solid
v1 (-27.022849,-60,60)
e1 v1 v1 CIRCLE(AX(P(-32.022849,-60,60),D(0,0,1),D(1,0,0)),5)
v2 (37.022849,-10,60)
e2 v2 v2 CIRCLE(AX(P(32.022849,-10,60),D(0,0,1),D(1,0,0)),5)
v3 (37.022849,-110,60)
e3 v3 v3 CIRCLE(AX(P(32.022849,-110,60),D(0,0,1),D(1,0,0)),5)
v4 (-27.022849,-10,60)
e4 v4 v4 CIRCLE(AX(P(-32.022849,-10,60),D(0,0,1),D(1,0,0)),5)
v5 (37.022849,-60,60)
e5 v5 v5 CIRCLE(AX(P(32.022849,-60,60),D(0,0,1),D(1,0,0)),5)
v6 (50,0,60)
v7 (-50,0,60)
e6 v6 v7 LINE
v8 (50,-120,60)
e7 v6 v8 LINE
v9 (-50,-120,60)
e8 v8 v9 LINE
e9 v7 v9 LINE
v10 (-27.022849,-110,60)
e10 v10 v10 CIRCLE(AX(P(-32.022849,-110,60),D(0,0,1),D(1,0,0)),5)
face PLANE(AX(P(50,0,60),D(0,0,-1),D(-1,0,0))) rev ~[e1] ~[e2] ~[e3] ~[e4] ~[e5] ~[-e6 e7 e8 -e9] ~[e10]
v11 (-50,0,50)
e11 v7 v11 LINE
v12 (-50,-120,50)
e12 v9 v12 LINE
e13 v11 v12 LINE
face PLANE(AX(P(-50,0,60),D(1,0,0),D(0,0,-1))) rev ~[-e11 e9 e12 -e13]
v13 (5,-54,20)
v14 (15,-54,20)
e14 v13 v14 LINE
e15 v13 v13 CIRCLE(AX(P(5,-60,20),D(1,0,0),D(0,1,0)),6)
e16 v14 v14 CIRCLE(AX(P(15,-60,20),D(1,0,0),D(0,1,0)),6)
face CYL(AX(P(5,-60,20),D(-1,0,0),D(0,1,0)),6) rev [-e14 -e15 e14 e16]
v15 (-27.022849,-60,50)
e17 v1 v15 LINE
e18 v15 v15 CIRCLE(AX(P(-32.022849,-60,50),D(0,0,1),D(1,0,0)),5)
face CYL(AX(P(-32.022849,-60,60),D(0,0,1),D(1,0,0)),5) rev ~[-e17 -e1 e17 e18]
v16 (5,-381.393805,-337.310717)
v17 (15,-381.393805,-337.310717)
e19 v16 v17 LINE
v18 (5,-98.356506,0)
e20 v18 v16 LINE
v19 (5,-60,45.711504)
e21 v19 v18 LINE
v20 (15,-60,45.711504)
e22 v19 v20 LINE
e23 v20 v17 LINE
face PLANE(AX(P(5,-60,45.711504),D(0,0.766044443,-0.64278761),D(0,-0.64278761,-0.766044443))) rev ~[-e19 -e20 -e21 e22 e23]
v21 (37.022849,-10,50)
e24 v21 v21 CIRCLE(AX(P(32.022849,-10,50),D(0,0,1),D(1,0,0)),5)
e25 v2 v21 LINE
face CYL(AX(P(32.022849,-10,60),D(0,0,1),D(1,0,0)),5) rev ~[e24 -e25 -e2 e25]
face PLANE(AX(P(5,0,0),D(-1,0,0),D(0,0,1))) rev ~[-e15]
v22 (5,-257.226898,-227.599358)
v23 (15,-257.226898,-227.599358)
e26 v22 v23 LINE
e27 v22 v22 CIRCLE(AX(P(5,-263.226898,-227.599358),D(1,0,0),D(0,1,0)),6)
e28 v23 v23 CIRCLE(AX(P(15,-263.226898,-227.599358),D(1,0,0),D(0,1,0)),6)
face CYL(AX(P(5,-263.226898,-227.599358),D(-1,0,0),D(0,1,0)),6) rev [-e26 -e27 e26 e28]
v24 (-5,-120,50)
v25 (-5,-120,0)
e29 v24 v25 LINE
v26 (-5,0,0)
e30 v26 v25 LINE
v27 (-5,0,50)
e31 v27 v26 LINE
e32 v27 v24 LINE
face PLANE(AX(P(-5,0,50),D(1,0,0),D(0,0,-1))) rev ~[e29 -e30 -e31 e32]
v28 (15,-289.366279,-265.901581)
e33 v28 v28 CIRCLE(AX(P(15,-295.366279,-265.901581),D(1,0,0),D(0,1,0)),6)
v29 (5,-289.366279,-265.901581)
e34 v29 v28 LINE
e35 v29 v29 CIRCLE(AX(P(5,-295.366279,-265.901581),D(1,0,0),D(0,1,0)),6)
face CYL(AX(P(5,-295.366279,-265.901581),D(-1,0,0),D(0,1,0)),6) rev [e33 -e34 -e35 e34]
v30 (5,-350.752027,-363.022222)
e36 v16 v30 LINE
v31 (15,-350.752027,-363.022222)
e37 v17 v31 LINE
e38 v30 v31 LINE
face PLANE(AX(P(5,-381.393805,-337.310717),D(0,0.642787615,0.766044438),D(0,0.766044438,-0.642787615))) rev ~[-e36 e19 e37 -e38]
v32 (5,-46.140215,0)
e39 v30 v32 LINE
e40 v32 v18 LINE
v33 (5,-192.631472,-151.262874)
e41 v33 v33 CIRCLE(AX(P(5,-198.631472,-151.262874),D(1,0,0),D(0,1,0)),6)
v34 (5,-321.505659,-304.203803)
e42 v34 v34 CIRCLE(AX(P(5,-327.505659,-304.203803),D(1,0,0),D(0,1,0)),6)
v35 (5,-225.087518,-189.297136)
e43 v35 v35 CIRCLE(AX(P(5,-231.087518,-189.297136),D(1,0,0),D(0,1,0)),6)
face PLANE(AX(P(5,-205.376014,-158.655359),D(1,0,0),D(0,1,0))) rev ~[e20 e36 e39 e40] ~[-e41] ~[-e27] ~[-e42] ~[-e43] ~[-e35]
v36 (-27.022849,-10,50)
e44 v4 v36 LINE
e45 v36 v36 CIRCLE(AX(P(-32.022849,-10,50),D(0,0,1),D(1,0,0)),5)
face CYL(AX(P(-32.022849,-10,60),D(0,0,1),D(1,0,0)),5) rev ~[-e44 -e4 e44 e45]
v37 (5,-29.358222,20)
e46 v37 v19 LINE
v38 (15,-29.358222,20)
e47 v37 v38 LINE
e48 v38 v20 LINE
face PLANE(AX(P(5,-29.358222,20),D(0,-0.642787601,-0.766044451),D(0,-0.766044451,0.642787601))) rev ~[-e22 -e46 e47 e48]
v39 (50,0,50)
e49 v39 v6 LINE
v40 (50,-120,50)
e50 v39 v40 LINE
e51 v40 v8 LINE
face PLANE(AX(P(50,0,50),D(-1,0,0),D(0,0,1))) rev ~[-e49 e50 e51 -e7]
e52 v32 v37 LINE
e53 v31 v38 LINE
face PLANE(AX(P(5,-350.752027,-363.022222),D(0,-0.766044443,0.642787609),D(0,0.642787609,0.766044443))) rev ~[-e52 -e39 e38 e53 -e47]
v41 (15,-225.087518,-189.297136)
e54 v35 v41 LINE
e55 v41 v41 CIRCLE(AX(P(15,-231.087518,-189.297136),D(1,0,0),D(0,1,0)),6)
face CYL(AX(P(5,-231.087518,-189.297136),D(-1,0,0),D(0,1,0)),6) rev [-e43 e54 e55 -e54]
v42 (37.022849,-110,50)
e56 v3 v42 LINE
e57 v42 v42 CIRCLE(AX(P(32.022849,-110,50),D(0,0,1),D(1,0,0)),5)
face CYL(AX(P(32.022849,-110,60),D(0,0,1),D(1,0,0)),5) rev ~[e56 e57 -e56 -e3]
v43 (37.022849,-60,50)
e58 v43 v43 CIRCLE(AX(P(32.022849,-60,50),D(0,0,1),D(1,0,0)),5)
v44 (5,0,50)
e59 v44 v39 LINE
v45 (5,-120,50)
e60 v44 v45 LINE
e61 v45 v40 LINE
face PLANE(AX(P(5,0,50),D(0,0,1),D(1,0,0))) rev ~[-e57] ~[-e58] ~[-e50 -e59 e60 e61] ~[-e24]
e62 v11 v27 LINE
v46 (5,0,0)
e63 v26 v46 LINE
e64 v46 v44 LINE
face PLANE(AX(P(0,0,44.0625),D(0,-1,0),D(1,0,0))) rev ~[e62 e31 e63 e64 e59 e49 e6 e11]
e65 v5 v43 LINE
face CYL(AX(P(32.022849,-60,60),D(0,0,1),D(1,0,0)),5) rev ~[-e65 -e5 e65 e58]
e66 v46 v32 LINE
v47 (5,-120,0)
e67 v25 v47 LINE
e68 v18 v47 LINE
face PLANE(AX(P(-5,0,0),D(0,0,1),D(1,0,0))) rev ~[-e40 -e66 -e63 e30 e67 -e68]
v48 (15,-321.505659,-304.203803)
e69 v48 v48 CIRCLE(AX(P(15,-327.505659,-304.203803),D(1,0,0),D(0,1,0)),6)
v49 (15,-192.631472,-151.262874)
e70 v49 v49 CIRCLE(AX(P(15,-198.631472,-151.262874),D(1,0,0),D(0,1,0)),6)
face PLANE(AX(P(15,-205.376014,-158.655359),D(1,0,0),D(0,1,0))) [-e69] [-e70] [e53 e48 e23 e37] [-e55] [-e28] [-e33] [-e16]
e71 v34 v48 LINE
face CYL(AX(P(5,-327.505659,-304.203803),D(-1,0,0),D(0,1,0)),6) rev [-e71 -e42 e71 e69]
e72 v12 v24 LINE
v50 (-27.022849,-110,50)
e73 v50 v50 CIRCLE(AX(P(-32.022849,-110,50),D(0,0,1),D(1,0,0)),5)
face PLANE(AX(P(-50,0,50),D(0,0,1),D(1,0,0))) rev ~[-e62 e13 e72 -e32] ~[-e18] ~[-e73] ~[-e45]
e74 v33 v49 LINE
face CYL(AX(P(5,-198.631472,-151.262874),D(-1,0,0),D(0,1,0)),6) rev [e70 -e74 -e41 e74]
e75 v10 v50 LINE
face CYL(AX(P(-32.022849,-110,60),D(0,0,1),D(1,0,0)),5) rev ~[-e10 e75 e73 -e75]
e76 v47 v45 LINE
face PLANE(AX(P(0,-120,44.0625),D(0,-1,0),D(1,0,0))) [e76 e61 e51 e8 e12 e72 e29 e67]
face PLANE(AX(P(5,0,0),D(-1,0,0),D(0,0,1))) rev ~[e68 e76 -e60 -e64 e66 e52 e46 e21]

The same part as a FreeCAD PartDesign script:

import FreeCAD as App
import Part
import Sketcher
Q = App.Units.Quantity

doc = App.newDocument("Part")
body = doc.addObject("PartDesign::Body", "Body")

sketch1 = body.newObject("Sketcher::SketchObject", "Sketch")
sketch1.AttachmentSupport = (doc.getObject("XZ_Plane"), [""])
sketch1.MapMode = "FlatFace"
sketch1.addGeometry([
    Part.LineSegment(App.Vector(-5, 50, 0), App.Vector(-5, 0, 0)),
    Part.LineSegment(App.Vector(-5, 0, 0), App.Vector(5, 0, 0)),
    Part.LineSegment(App.Vector(5, 0, 0), App.Vector(5, 50, 0)),
    Part.LineSegment(App.Vector(5, 50, 0), App.Vector(50, 50, 0)),
    Part.LineSegment(App.Vector(50, 50, 0), App.Vector(50, 60, 0)),
    Part.LineSegment(App.Vector(50, 60, 0), App.Vector(-50, 60, 0)),
    Part.LineSegment(App.Vector(-50, 60, 0), App.Vector(-50, 50, 0)),
    Part.LineSegment(App.Vector(-50, 50, 0), App.Vector(-5, 50, 0)),
], False)
sketch1.addConstraint([
    Sketcher.Constraint("Coincident", 0, 2, 1, 1),
    Sketcher.Constraint("Coincident", 1, 2, 2, 1),
    Sketcher.Constraint("Coincident", 2, 2, 3, 1),
    Sketcher.Constraint("Coincident", 3, 2, 4, 1),
    Sketcher.Constraint("Coincident", 4, 2, 5, 1),
    Sketcher.Constraint("Coincident", 5, 2, 6, 1),
    Sketcher.Constraint("Coincident", 6, 2, 7, 1),
    Sketcher.Constraint("Coincident", 7, 2, 0, 1),
    Sketcher.Constraint("Vertical", 0),
    Sketcher.Constraint("Horizontal", 1),
    Sketcher.Constraint("Vertical", 2),
    Sketcher.Constraint("Horizontal", 3),
    Sketcher.Constraint("Vertical", 4),
    Sketcher.Constraint("Horizontal", 5),
    Sketcher.Constraint("Vertical", 6),
    Sketcher.Constraint("Horizontal", 7),
    Sketcher.Constraint("Symmetric", 0, 2, 1, 2, -1, 1),
    Sketcher.Constraint("Symmetric", 3, 2, 6, 2, -2),
    Sketcher.Constraint("Equal", 1, 4),
    Sketcher.Constraint("DistanceX", 1, 1, 1, 2, 10.0),
    Sketcher.Constraint("DistanceX", 3, 1, 3, 2, 45.0),
    Sketcher.Constraint("DistanceY", 0, 2, 0, 1, 50.0),
])
pad1 = body.newObject("PartDesign::Pad", "Pad")
pad1.Profile = sketch1
pad1.Length = 120

sketch2 = body.newObject("Sketcher::SketchObject", "Sketch001")
sketch2.AttachmentSupport = (doc.getObject("YZ_Plane"), [""])
sketch2.MapMode = "FlatFace"
sketch2.AttachmentOffset = App.Placement(App.Vector(0, 0, 5), App.Rotation())
sketch2.addGeometry([
    Part.LineSegment(App.Vector(-29, 20, 0), App.Vector(-60, 46, 0)),
    Part.LineSegment(App.Vector(-60, 46, 0), App.Vector(-381, -337, 0)),
    Part.LineSegment(App.Vector(-381, -337, 0), App.Vector(-351, -363, 0)),
    Part.LineSegment(App.Vector(-351, -363, 0), App.Vector(-29, 20, 0)),
    Part.Circle(App.Vector(-328, -304, 0), App.Vector(0, 0, 1), 6),
    Part.Circle(App.Vector(-295, -266, 0), App.Vector(0, 0, 1), 6),
    Part.Circle(App.Vector(-263, -228, 0), App.Vector(0, 0, 1), 6),
    Part.Circle(App.Vector(-231, -189, 0), App.Vector(0, 0, 1), 6),
    Part.Circle(App.Vector(-199, -151, 0), App.Vector(0, 0, 1), 6),
    Part.Circle(App.Vector(-60, 20, 0), App.Vector(0, 0, 1), 6),
], False)
sketch2.addConstraint([
    Sketcher.Constraint("Coincident", 0, 2, 1, 1),
    Sketcher.Constraint("Coincident", 1, 2, 2, 1),
    Sketcher.Constraint("Coincident", 2, 2, 3, 1),
    Sketcher.Constraint("Coincident", 3, 2, 0, 1),
    Sketcher.Constraint("Equal", 4, 5),
    Sketcher.Constraint("Equal", 5, 6),
    Sketcher.Constraint("Equal", 6, 7),
    Sketcher.Constraint("Equal", 7, 8),
    Sketcher.Constraint("Equal", 8, 9),
    Sketcher.Constraint("Perpendicular", 0, 1),
    Sketcher.Constraint("Perpendicular", 1, 2),
    Sketcher.Constraint("Perpendicular", 2, 3),
    Sketcher.Constraint("Horizontal", 9, 3, 3, 2),
    Sketcher.Constraint("Vertical", 9, 3, 0, 2),
    Sketcher.Constraint("Diameter", 4, 12.0),
    Sketcher.Constraint("Angle", 0, Q("140.000001 deg")),
    Sketcher.Constraint("Distance", 0, 40.0),
    Sketcher.Constraint("Distance", 1, 500.0),
    Sketcher.Constraint("DistanceX", 9, 3, -1, 1, 60.0),
    Sketcher.Constraint("DistanceY", -1, 1, 9, 3, 20.0),
    Sketcher.Constraint("DistanceX", 6, 3, -1, 1, 263.226898),
    Sketcher.Constraint("DistanceX", 4, 3, -1, 1, 327.505659),
    Sketcher.Constraint("DistanceX", 5, 3, -1, 1, 295.366279),
    Sketcher.Constraint("DistanceY", 5, 3, -1, 1, 265.901581),
    Sketcher.Constraint("DistanceY", 6, 3, -1, 1, 227.599358),
    Sketcher.Constraint("DistanceX", 8, 3, -1, 1, 198.631472),
    Sketcher.Constraint("DistanceY", 4, 3, 5, 3, 38.302222),
    Sketcher.Constraint("DistanceX", 6, 3, 7, 3, 32.13938),
    Sketcher.Constraint("DistanceY", 7, 3, 8, 3, 38.034262),
    Sketcher.Constraint("DistanceY", 4, 3, 8, 3, 152.940929),
])
pad2 = body.newObject("PartDesign::Pad", "Pad001")
pad2.Profile = sketch2
pad2.Length = 10

sketch3 = body.newObject("Sketcher::SketchObject", "Sketch002")
sketch3.AttachmentSupport = (doc.getObject("XY_Plane"), [""])
sketch3.MapMode = "FlatFace"
sketch3.AttachmentOffset = App.Placement(App.Vector(0, 0, 60), App.Rotation())
sketch3.addGeometry([
    Part.Circle(App.Vector(-32, -10, 0), App.Vector(0, 0, 1), 5),
    Part.Circle(App.Vector(-32, -60, 0), App.Vector(0, 0, 1), 5),
    Part.Circle(App.Vector(-32, -110, 0), App.Vector(0, 0, 1), 5),
    Part.Circle(App.Vector(32, -110, 0), App.Vector(0, 0, 1), 5),
    Part.Circle(App.Vector(32, -60, 0), App.Vector(0, 0, 1), 5),
    Part.Circle(App.Vector(32, -10, 0), App.Vector(0, 0, 1), 5),
], False)
sketch3.addConstraint([
    Sketcher.Constraint("Equal", 0, 1),
    Sketcher.Constraint("Equal", 1, 2),
    Sketcher.Constraint("Equal", 2, 3),
    Sketcher.Constraint("Equal", 3, 4),
    Sketcher.Constraint("Equal", 4, 5),
    Sketcher.Constraint("Symmetric", 2, 3, 3, 3, -2),
    Sketcher.Constraint("Symmetric", 1, 3, 4, 3, -2),
    Sketcher.Constraint("Symmetric", 0, 3, 5, 3, -2),
    Sketcher.Constraint("Vertical", 0, 3, 1, 3),
    Sketcher.Constraint("Vertical", 1, 3, 2, 3),
    Sketcher.Constraint("Diameter", 0, 10.0),
    Sketcher.Constraint("DistanceY", 0, 3, -1, 1, 10.0),
    Sketcher.Constraint("DistanceY", 1, 3, -1, 1, 60.0),
    Sketcher.Constraint("DistanceY", 2, 3, -1, 1, 110.0),
    Sketcher.Constraint("DistanceX", 2, 3, 3, 3, 64.045698),
])
pocket1 = body.newObject("PartDesign::Pocket", "Pocket")
pocket1.Profile = sketch3
pocket1.Type = "ThroughAll"

doc.recompute()
